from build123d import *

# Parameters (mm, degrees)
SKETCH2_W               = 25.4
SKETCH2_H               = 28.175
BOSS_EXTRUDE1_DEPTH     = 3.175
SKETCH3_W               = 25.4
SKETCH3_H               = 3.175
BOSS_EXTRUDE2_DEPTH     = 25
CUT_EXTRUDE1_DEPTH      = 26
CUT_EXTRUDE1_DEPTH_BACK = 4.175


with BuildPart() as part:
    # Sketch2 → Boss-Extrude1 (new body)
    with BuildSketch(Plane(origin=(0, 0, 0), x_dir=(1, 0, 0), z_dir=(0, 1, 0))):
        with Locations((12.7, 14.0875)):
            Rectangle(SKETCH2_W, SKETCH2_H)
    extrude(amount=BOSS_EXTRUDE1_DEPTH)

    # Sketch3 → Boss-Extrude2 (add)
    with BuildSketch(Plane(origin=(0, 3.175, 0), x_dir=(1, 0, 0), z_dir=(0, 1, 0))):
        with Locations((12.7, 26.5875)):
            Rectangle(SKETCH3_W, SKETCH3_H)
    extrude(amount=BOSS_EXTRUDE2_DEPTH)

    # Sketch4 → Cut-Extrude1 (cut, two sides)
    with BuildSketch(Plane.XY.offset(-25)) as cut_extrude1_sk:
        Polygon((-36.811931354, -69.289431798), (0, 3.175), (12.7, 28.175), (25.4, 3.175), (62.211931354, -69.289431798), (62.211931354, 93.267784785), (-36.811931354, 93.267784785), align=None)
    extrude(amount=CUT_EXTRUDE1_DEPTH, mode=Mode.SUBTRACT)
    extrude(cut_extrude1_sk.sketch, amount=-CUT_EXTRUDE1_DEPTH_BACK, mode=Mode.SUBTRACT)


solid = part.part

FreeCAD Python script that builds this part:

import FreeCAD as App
import Part
import Sketcher
from FreeCAD import Vector
Q = App.Units.Quantity


def add_polygon(sketch, points):
    """Adds a closed chain of lines whose ends are joined by coincident constraints."""
    first, n = sketch.GeometryCount, len(points)
    for a, b in zip(points, points[1:] + points[:1]):
        sketch.addGeometry(Part.LineSegment(App.Vector(*a, 0), App.Vector(*b, 0)), False)
    for i in range(n):
        sketch.addConstraint(Sketcher.Constraint("Coincident", first + i, 2, first + (i + 1) % n, 1))

doc = App.newDocument("Part")
body = doc.addObject("PartDesign::Body", "Body")

# Sketch on XZ plane
sketch1 = doc.addObject("Sketcher::SketchObject", "Sketch")
body.addObject(sketch1)
sketch1.AttachmentSupport = (doc.XZ_Plane, [""])
sketch1.MapMode = "FlatFace"
add_polygon(sketch1, [(0, -28), (0, 0), (25, 0), (25, -28)])  # lines 0-3
sketch1.addConstraint(Sketcher.Constraint("Vertical", 0))
sketch1.addConstraint(Sketcher.Constraint("Horizontal", 1))
sketch1.addConstraint(Sketcher.Constraint("Vertical", 2))
sketch1.addConstraint(Sketcher.Constraint("Horizontal", 3))
sketch1.addConstraint(Sketcher.Constraint("Coincident", 0, 2, -1, 1))
sketch1.addConstraint(Sketcher.Constraint("DistanceX", 1, 1, 1, 2, Q("25.4 mm")))
sketch1.addConstraint(Sketcher.Constraint("DistanceY", 0, 1, 0, 2, Q("28.175 mm")))
pad1 = doc.addObject("PartDesign::Pad", "Pad")
body.addObject(pad1)
pad1.Profile = sketch1
pad1.Length = 3.175
pad1.Reversed = True

# Sketch on XZ plane
sketch2 = doc.addObject("Sketcher::SketchObject", "Sketch001")
body.addObject(sketch2)
sketch2.AttachmentSupport = (doc.XZ_Plane, [""])
sketch2.MapMode = "FlatFace"
sketch2.AttachmentOffset = App.Placement(Vector(0, 0, -3.175), App.Rotation())
add_polygon(sketch2, [(0, -28.2), (0, -25), (25.4, -25), (25.4, -28.2)])  # lines 0-3
sketch2.addConstraint(Sketcher.Constraint("Vertical", 0))
sketch2.addConstraint(Sketcher.Constraint("Horizontal", 1))
sketch2.addConstraint(Sketcher.Constraint("Vertical", 2))
sketch2.addConstraint(Sketcher.Constraint("Horizontal", 3))
sketch2.addConstraint(Sketcher.Constraint("PointOnObject", 0, 2, -2))
sketch2.addConstraint(Sketcher.Constraint("DistanceX", 1, 1, 1, 2, Q("25.4 mm")))
sketch2.addConstraint(Sketcher.Constraint("DistanceY", 0, 2, -1, 1, Q("25 mm")))
sketch2.addConstraint(Sketcher.Constraint("DistanceY", 0, 1, 0, 2, Q("3.175 mm")))
pad2 = doc.addObject("PartDesign::Pad", "Pad001")
body.addObject(pad2)
pad2.Profile = sketch2
pad2.Length = 25
pad2.Reversed = True

# Sketch on XY plane
sketch3 = doc.addObject("Sketcher::SketchObject", "Sketch002")
body.addObject(sketch3)
sketch3.AttachmentSupport = (doc.XY_Plane, [""])
sketch3.MapMode = "FlatFace"
sketch3.AttachmentOffset = App.Placement(Vector(0, 0, -25), App.Rotation())
add_polygon(sketch3, [(-37, -69), (0, 3), (13, 28), (25, 3), (62, -69), (62, 93), (-37, 93)])  # lines 0-6
sketch3.addConstraint(Sketcher.Constraint("Vertical", 4))
sketch3.addConstraint(Sketcher.Constraint("Horizontal", 5))
sketch3.addConstraint(Sketcher.Constraint("Vertical", 6))
sketch3.addConstraint(Sketcher.Constraint("PointOnObject", 0, 2, -2))
sketch3.addConstraint(Sketcher.Constraint("Parallel", 0, 1))
sketch3.addConstraint(Sketcher.Constraint("Parallel", 2, 3))
sketch3.addConstraint(Sketcher.Constraint("Horizontal", 0, 2, 2, 2))
sketch3.addConstraint(Sketcher.Constraint("Horizontal", 3, 2, 6, 2))
sketch3.addConstraint(Sketcher.Constraint("Equal", 1, 2))
sketch3.addConstraint(Sketcher.Constraint("DistanceY", 0, 2, 1, 2, Q("25 mm")))
sketch3.addConstraint(Sketcher.Constraint("DistanceX", -1, 1, 1, 2, Q("12.7 mm")))
sketch3.addConstraint(Sketcher.Constraint("DistanceY", -1, 1, 0, 2, Q("3.175 mm")))
sketch3.addConstraint(Sketcher.Constraint("Distance", 0, Q("81.278608 mm")))
sketch3.addConstraint(Sketcher.Constraint("DistanceY", 4, 1, 4, 2, Q("162.557217 mm")))
pocket1 = doc.addObject("PartDesign::Pocket", "Pocket")
body.addObject(pocket1)
pocket1.Profile = sketch3
pocket1.Type = "ThroughAll"
pocket1.Midplane = True

doc.recompute()
